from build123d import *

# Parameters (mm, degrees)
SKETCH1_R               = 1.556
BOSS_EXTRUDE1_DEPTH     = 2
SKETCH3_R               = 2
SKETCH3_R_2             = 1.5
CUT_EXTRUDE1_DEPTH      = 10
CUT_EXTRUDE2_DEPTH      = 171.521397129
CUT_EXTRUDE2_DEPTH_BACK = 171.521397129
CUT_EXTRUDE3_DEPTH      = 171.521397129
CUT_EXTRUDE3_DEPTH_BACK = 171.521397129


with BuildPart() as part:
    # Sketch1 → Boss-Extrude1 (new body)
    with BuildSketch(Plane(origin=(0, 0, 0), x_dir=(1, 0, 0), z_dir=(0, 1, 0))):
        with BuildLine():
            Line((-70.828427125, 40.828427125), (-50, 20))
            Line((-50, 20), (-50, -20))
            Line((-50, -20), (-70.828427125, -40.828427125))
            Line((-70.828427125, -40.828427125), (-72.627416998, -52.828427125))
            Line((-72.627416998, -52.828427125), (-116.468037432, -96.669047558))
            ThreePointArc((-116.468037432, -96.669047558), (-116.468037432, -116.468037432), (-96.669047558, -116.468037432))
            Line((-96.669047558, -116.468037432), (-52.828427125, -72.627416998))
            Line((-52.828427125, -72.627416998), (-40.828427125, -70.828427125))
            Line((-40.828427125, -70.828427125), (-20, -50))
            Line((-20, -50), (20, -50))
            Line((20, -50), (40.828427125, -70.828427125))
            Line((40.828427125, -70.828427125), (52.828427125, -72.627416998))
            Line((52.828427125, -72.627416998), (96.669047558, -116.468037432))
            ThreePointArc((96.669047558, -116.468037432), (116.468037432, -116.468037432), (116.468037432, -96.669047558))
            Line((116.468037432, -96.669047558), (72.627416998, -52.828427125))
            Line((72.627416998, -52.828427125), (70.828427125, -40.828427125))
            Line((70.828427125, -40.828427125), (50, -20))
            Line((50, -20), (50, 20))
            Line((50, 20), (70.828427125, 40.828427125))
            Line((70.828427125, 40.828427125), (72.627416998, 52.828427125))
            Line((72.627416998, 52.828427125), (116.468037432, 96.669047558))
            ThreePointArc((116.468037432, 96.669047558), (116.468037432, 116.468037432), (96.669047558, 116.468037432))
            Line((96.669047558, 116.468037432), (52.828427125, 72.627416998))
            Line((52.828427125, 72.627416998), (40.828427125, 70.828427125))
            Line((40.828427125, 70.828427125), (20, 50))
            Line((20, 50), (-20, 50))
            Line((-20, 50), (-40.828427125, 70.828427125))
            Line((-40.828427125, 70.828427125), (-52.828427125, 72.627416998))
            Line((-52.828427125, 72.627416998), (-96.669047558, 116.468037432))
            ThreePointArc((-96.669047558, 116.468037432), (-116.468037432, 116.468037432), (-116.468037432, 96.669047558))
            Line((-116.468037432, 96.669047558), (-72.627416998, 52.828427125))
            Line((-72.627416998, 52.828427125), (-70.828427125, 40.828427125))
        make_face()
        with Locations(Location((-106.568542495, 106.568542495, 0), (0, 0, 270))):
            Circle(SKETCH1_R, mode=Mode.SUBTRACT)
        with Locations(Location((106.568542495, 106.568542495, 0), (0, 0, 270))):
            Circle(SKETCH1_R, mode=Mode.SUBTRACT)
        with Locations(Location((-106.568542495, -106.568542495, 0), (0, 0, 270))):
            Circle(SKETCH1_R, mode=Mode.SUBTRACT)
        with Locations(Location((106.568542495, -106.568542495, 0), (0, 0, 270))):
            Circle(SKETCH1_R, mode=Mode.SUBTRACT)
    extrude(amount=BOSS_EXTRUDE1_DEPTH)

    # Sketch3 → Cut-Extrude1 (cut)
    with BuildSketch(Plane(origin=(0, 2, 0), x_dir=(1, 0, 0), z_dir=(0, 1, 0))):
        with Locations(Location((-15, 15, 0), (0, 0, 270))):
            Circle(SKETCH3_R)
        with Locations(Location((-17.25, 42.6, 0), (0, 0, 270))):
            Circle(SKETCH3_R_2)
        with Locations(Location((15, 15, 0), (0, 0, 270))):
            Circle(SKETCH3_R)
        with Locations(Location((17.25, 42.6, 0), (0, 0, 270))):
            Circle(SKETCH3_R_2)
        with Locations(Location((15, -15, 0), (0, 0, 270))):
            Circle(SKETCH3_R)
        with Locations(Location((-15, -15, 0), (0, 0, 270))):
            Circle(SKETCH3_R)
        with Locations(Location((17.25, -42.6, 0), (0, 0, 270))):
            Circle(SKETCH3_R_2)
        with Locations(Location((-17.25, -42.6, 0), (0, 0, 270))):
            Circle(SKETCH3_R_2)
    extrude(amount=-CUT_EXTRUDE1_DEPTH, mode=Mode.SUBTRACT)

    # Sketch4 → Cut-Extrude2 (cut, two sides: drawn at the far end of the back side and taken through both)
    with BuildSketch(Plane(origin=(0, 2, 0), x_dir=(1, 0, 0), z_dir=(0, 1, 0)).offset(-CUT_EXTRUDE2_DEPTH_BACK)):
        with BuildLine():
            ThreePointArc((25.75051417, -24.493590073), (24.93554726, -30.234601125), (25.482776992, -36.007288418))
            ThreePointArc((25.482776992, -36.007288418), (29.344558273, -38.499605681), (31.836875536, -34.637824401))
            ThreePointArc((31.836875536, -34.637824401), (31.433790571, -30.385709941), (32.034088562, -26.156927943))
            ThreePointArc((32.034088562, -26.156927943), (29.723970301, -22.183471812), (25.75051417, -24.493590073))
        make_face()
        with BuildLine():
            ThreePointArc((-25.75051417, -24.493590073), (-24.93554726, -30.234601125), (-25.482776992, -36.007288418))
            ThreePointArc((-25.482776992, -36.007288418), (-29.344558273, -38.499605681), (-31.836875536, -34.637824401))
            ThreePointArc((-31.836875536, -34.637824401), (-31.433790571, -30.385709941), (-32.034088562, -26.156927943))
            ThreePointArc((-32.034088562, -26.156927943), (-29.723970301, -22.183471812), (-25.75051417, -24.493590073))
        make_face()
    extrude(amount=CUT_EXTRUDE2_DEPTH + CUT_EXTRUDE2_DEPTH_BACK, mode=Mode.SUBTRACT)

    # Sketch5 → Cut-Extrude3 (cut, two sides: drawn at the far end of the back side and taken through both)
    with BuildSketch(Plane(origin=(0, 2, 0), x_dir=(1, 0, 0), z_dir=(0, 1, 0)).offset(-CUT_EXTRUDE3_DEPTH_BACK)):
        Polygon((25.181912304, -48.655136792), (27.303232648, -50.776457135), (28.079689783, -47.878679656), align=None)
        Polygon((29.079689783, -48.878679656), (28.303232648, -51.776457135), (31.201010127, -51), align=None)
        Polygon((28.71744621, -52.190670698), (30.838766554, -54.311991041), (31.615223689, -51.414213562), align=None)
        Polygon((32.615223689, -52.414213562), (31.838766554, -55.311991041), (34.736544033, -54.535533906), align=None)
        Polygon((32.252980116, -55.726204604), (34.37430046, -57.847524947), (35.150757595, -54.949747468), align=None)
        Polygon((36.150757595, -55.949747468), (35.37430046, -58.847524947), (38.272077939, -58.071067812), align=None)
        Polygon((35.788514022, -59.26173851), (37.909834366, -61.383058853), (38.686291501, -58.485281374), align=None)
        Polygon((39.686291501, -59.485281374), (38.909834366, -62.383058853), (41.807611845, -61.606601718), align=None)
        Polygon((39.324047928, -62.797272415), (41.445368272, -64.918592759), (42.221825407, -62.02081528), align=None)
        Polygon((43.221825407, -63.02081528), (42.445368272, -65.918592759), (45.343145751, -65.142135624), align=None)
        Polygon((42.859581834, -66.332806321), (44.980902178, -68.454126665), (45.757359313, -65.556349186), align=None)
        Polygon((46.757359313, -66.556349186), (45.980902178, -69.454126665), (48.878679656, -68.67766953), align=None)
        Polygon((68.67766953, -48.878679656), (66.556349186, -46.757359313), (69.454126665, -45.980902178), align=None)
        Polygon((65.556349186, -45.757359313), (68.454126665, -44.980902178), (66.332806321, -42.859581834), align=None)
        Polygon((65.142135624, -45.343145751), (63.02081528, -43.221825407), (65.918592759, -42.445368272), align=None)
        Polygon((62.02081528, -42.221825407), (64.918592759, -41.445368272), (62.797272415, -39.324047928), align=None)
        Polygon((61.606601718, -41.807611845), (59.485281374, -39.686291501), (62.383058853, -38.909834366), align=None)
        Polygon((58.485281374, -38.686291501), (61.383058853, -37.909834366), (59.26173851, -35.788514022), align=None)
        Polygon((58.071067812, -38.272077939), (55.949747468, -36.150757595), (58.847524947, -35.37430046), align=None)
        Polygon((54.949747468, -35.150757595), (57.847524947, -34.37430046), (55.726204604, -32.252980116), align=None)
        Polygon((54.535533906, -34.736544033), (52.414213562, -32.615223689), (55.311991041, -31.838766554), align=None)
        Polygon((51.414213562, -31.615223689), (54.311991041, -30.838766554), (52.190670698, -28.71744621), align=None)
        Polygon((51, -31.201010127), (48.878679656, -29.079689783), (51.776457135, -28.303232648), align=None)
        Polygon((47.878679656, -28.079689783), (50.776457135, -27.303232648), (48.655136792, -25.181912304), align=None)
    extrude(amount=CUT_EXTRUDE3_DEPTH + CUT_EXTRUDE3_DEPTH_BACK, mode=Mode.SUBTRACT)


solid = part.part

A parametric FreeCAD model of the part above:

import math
import FreeCAD as App
import Part
import Sketcher

V = App.Vector
Q = App.Units.Quantity

doc = App.newDocument("Part")
body = doc.addObject("PartDesign::Body", "Body")

sketch1 = body.newObject("Sketcher::SketchObject", "Sketch")
sketch1.AttachmentSupport = (doc.getObject("XZ_Plane"), [""])
sketch1.MapMode = "FlatFace"
sketch1.addGeometry([
    Part.LineSegment(V(-70.8, -40.8, 0), V(-50, -20, 0)),
    Part.LineSegment(V(-50, -20, 0), V(-50, 20, 0)),
    Part.LineSegment(V(-50, 20, 0), V(-70.8, 40.8, 0)),
    Part.LineSegment(V(-70.8, 40.8, 0), V(-72.6, 52.8, 0)),
    Part.LineSegment(V(-72.6, 52.8, 0), V(-116.5, 96.7, 0)),
    Part.ArcOfCircle(Part.Circle(V(-106.6, 106.6, 0), V(0, 0, 1), 14), math.radians(45), math.radians(225)),
    Part.LineSegment(V(-96.7, 116.5, 0), V(-52.8, 72.6, 0)),
    Part.LineSegment(V(-52.8, 72.6, 0), V(-40.8, 70.8, 0)),
    Part.LineSegment(V(-40.8, 70.8, 0), V(-20, 50, 0)),
    Part.LineSegment(V(-20, 50, 0), V(20, 50, 0)),
    Part.LineSegment(V(20, 50, 0), V(40.8, 70.8, 0)),
    Part.LineSegment(V(40.8, 70.8, 0), V(52.8, 72.6, 0)),
    Part.LineSegment(V(52.8, 72.6, 0), V(96.7, 116.5, 0)),
    Part.ArcOfCircle(Part.Circle(V(106.6, 106.6, 0), V(0, 0, 1), 14), math.radians(-45), math.radians(135)),
    Part.LineSegment(V(116.5, 96.7, 0), V(72.6, 52.8, 0)),
    Part.LineSegment(V(72.6, 52.8, 0), V(70.8, 40.8, 0)),
    Part.LineSegment(V(70.8, 40.8, 0), V(50, 20, 0)),
    Part.LineSegment(V(50, 20, 0), V(50, -20, 0)),
    Part.LineSegment(V(50, -20, 0), V(70.8, -40.8, 0)),
    Part.LineSegment(V(70.8, -40.8, 0), V(72.6, -52.8, 0)),
    Part.LineSegment(V(72.6, -52.8, 0), V(116.5, -96.7, 0)),
    Part.ArcOfCircle(Part.Circle(V(106.6, -106.6, 0), V(0, 0, 1), 14), math.radians(-135), math.radians(45)),
    Part.LineSegment(V(96.7, -116.5, 0), V(52.8, -72.6, 0)),
    Part.LineSegment(V(52.8, -72.6, 0), V(40.8, -70.8, 0)),
    Part.LineSegment(V(40.8, -70.8, 0), V(20, -50, 0)),
    Part.LineSegment(V(20, -50, 0), V(-20, -50, 0)),
    Part.LineSegment(V(-20, -50, 0), V(-40.8, -70.8, 0)),
    Part.LineSegment(V(-40.8, -70.8, 0), V(-52.8, -72.6, 0)),
    Part.LineSegment(V(-52.8, -72.6, 0), V(-96.7, -116.5, 0)),
    Part.ArcOfCircle(Part.Circle(V(-106.6, -106.6, 0), V(0, 0, 1), 14), math.radians(135), math.radians(315)),
    Part.LineSegment(V(-116.5, -96.7, 0), V(-72.6, -52.8, 0)),
    Part.LineSegment(V(-72.6, -52.8, 0), V(-70.8, -40.8, 0)),
    Part.Circle(V(-106.6, 106.6, 0), V(0, 0, 1), 1.6),
    Part.Circle(V(106.6, 106.6, 0), V(0, 0, 1), 1.6),
    Part.Circle(V(-106.6, -106.6, 0), V(0, 0, 1), 1.6),
    Part.Circle(V(106.6, -106.6, 0), V(0, 0, 1), 1.6),
], False)
sketch1.addConstraint([
    Sketcher.Constraint("Coincident", 0, 2, 1, 1),
    Sketcher.Constraint("Coincident", 1, 2, 2, 1),
    Sketcher.Constraint("Coincident", 2, 2, 3, 1),
    Sketcher.Constraint("Coincident", 3, 2, 4, 1),
    Sketcher.Constraint("Tangent", 4, 2, 5, 2),
    Sketcher.Constraint("Tangent", 5, 1, 6, 1),
    Sketcher.Constraint("Coincident", 6, 2, 7, 1),
    Sketcher.Constraint("Coincident", 7, 2, 8, 1),
    Sketcher.Constraint("Coincident", 8, 2, 9, 1),
    Sketcher.Constraint("Coincident", 9, 2, 10, 1),
    Sketcher.Constraint("Coincident", 10, 2, 11, 1),
    Sketcher.Constraint("Coincident", 11, 2, 12, 1),
    Sketcher.Constraint("Tangent", 12, 2, 13, 2),
    Sketcher.Constraint("Tangent", 13, 1, 14, 1),
    Sketcher.Constraint("Coincident", 14, 2, 15, 1),
    Sketcher.Constraint("Coincident", 15, 2, 16, 1),
    Sketcher.Constraint("Coincident", 16, 2, 17, 1),
    Sketcher.Constraint("Coincident", 17, 2, 18, 1),
    Sketcher.Constraint("Coincident", 18, 2, 19, 1),
    Sketcher.Constraint("Coincident", 19, 2, 20, 1),
    Sketcher.Constraint("Tangent", 20, 2, 21, 2),
    Sketcher.Constraint("Tangent", 21, 1, 22, 1),
    Sketcher.Constraint("Coincident", 22, 2, 23, 1),
    Sketcher.Constraint("Coincident", 23, 2, 24, 1),
    Sketcher.Constraint("Coincident", 24, 2, 25, 1),
    Sketcher.Constraint("Coincident", 25, 2, 26, 1),
    Sketcher.Constraint("Coincident", 26, 2, 27, 1),
    Sketcher.Constraint("Coincident", 27, 2, 28, 1),
    Sketcher.Constraint("Tangent", 28, 2, 29, 2),
    Sketcher.Constraint("Tangent", 29, 1, 30, 1),
    Sketcher.Constraint("Coincident", 30, 2, 31, 1),
    Sketcher.Constraint("Coincident", 31, 2, 0, 1),
    Sketcher.Constraint("Vertical", 1),
    Sketcher.Constraint("Horizontal", 9),
    Sketcher.Constraint("Vertical", 17),
    Sketcher.Constraint("Horizontal", 25),
    Sketcher.Constraint("Coincident", 32, 3, 5, 3),
    Sketcher.Constraint("Coincident", 33, 3, 13, 3),
    Sketcher.Constraint("Coincident", 34, 3, 29, 3),
    Sketcher.Constraint("Coincident", 35, 3, 21, 3),
    Sketcher.Constraint("Equal", 5, 13),
    Sketcher.Constraint("Equal", 13, 21),
    Sketcher.Constraint("Equal", 21, 29),
    Sketcher.Constraint("Equal", 32, 33),
    Sketcher.Constraint("Equal", 33, 34),
    Sketcher.Constraint("Equal", 34, 35),
    Sketcher.Constraint("Symmetric", 5, 3, 21, 3, -1, 1),
    Sketcher.Constraint("Symmetric", 13, 3, 29, 3, -1, 1),
    Sketcher.Constraint("Symmetric", 0, 2, 16, 2, -1, 1),
    Sketcher.Constraint("Symmetric", 2, 2, 18, 2, -1, 1),
    Sketcher.Constraint("Symmetric", 3, 2, 19, 2, -1, 1),
    Sketcher.Constraint("Symmetric", 6, 2, 22, 2, -1, 1),
    Sketcher.Constraint("Symmetric", 7, 2, 23, 2, -1, 1),
    Sketcher.Constraint("Symmetric", 8, 2, 24, 2, -1, 1),
    Sketcher.Constraint("Symmetric", 10, 2, 26, 2, -1, 1),
    Sketcher.Constraint("Symmetric", 11, 2, 27, 2, -1, 1),
    Sketcher.Constraint("Symmetric", 14, 2, 30, 2, -1, 1),
    Sketcher.Constraint("Symmetric", 15, 2, 31, 2, -1, 1),
    Sketcher.Constraint("Symmetric", 5, 3, 13, 3, -2),
    Sketcher.Constraint("Symmetric", 7, 2, 10, 2, -2),
    Sketcher.Constraint("Symmetric", 6, 2, 11, 2, -2),
    Sketcher.Constraint("Symmetric", 3, 2, 14, 2, -2),
    Sketcher.Constraint("Symmetric", 2, 2, 15, 2, -2),
    Sketcher.Constraint("Perpendicular", 0, 2),
    Sketcher.Constraint("Parallel", 2, 4),
    Sketcher.Constraint("Parallel", 4, 6),
    Sketcher.Constraint("Parallel", 6, 8),
    Sketcher.Constraint("Perpendicular", 8, 10),
    Sketcher.Constraint("Perpendicular", 3, 11),
    Sketcher.Constraint("Parallel", 10, 12),
    Sketcher.Constraint("Perpendicular", 16, 18),
    Sketcher.Constraint("Perpendicular", 24, 26),
    Sketcher.Constraint("Equal", 25, 1),
    Sketcher.Constraint("Equal", 4, 6),
    Sketcher.Constraint("Equal", 3, 7),
    Sketcher.Constraint("Equal", 2, 8),
    Sketcher.Constraint("Radius", 5, Q("14 mm")),
    Sketcher.Constraint("DistanceX", 9, 1, 9, 2, Q("40 mm")),
    Sketcher.Constraint("Distance", 4, Q("62 mm")),
    Sketcher.Constraint("Diameter", 32, Q("3.112 mm")),
    Sketcher.Constraint("DistanceX", 0, 2, -1, 1, Q("50 mm")),
    Sketcher.Constraint("DistanceY", 2, 2, 3, 2, Q("12 mm")),
    Sketcher.Constraint("DistanceY", 29, 3, 2, 2, Q("147.39697 mm")),
])
pad1 = body.newObject("PartDesign::Pad", "Pad")
pad1.Profile = sketch1
pad1.Length = 2
pad1.Reversed = True

sketch2 = body.newObject("Sketcher::SketchObject", "Sketch001")
sketch2.AttachmentSupport = (doc.getObject("XZ_Plane"), [""])
sketch2.MapMode = "FlatFace"
sketch2.AttachmentOffset = App.Placement(V(0, 0, -2), App.Rotation())
sketch2.addGeometry([
    Part.Circle(V(-15, -15, 0), V(0, 0, 1), 2),
    Part.Circle(V(-17.2, -42.6, 0), V(0, 0, 1), 1.5),
    Part.Circle(V(15, -15, 0), V(0, 0, 1), 2),
    Part.Circle(V(17.2, -42.6, 0), V(0, 0, 1), 1.5),
    Part.Circle(V(15, 15, 0), V(0, 0, 1), 2),
    Part.Circle(V(-15, 15, 0), V(0, 0, 1), 2),
    Part.Circle(V(17.2, 42.6, 0), V(0, 0, 1), 1.5),
    Part.Circle(V(-17.2, 42.6, 0), V(0, 0, 1), 1.5),
], False)
sketch2.addConstraint([
    Sketcher.Constraint("Equal", 0, 2),
    Sketcher.Constraint("Equal", 1, 3),
    Sketcher.Constraint("Equal", 2, 4),
    Sketcher.Constraint("Equal", 4, 5),
    Sketcher.Constraint("Equal", 3, 6),
    Sketcher.Constraint("Equal", 6, 7),
    Sketcher.Constraint("Symmetric", 0, 3, 4, 3, -1, 1),
    Sketcher.Constraint("Symmetric", 2, 3, 5, 3, -1, 1),
    Sketcher.Constraint("Symmetric", 1, 3, 6, 3, -1, 1),
    Sketcher.Constraint("Symmetric", 3, 3, 7, 3, -1, 1),
    Sketcher.Constraint("Symmetric", 0, 3, 2, 3, -2),
    Sketcher.Constraint("Symmetric", 1, 3, 3, 3, -2),
    Sketcher.Constraint("Diameter", 0, Q("4 mm")),
    Sketcher.Constraint("Diameter", 1, Q("3 mm")),
    Sketcher.Constraint("DistanceX", 0, 3, -1, 1, Q("15 mm")),
    Sketcher.Constraint("DistanceY", 0, 3, -1, 1, Q("15 mm")),
    Sketcher.Constraint("DistanceY", 1, 3, -1, 1, Q("42.6 mm")),
    Sketcher.Constraint("DistanceX", 1, 3, 3, 3, Q("34.5 mm")),
])
pocket1 = body.newObject("PartDesign::Pocket", "Pocket")
pocket1.Profile = sketch2
pocket1.Length = 10
pocket1.Reversed = True

sketch3 = body.newObject("Sketcher::SketchObject", "Sketch002")
sketch3.AttachmentSupport = (doc.getObject("XZ_Plane"), [""])
sketch3.MapMode = "FlatFace"
sketch3.AttachmentOffset = App.Placement(V(0, 0, -2), App.Rotation())
sketch3.addGeometry([
    Part.ArcOfCircle(Part.Circle(V(49.6, 30.8, 0), V(0, 0, 1), 24.7), math.radians(168), math.radians(195)),
    Part.ArcOfCircle(Part.Circle(V(28.7, 35.3, 0), V(0, 0, 1), 3.2), math.radians(-12), math.radians(168)),
    Part.ArcOfCircle(Part.Circle(V(49.6, 30.8, 0), V(0, 0, 1), 18.2), math.radians(168), math.radians(195)),
    Part.ArcOfCircle(Part.Circle(V(28.9, 25.3, 0), V(0, 0, 1), 3.2), math.radians(-165), math.radians(15)),
    Part.ArcOfCircle(Part.Circle(V(-49.6, 30.8, 0), V(0, 0, 1), 24.7), math.radians(-15), math.radians(12)),
    Part.ArcOfCircle(Part.Circle(V(-28.9, 25.3, 0), V(0, 0, 1), 3.2), math.radians(165), math.radians(345)),
    Part.ArcOfCircle(Part.Circle(V(-49.6, 30.8, 0), V(0, 0, 1), 18.2), math.radians(-15), math.radians(12)),
    Part.ArcOfCircle(Part.Circle(V(-28.7, 35.3, 0), V(0, 0, 1), 3.2), math.radians(12), math.radians(192)),
], False)
sketch3.addConstraint([
    Sketcher.Constraint("Tangent", 0, 1, 1, 2),
    Sketcher.Constraint("Tangent", 1, 1, 2, 1),
    Sketcher.Constraint("Tangent", 2, 2, 3, 2),
    Sketcher.Constraint("Tangent", 3, 1, 0, 2),
    Sketcher.Constraint("Tangent", 4, 1, 5, 2),
    Sketcher.Constraint("Tangent", 5, 1, 6, 1),
    Sketcher.Constraint("Tangent", 6, 2, 7, 2),
    Sketcher.Constraint("Tangent", 7, 1, 4, 2),
    Sketcher.Constraint("Coincident", 2, 3, 0, 3),
    Sketcher.Constraint("Coincident", 6, 3, 4, 3),
    Sketcher.Constraint("Equal", 0, 4),
    Sketcher.Constraint("Equal", 3, 5),
    Sketcher.Constraint("Symmetric", 0, 3, 4, 3, -2),
    Sketcher.Constraint("Horizontal", 3, 3, 5, 3),
    Sketcher.Constraint("Horizontal", 1, 3, 7, 3),
    Sketcher.Constraint("Radius", 1, Q("3.25 mm")),
    Sketcher.Constraint("Radius", 0, Q("24.676534 mm")),
    Sketcher.Constraint("DistanceX", -1, 1, 3, 3, Q("28.892301 mm")),
    Sketcher.Constraint("DistanceX", 0, 1, 1, 1, Q("6.354099 mm")),
    Sketcher.Constraint("DistanceY", 3, 1, 0, 1, Q("11.513698 mm")),
    Sketcher.Constraint("DistanceY", -1, 1, 0, 3, Q("30.808269 mm")),
])
pocket2 = body.newObject("PartDesign::Pocket", "Pocket001")
pocket2.Profile = sketch3
pocket2.Type = "ThroughAll"
pocket2.Midplane = True

sketch4 = body.newObject("Sketcher::SketchObject", "Sketch003")
sketch4.AttachmentSupport = (doc.getObject("XZ_Plane"), [""])
sketch4.MapMode = "FlatFace"
sketch4.AttachmentOffset = App.Placement(V(0, 0, -2), App.Rotation())
sketch4.addGeometry([
    Part.LineSegment(V(25.2, 48.7, 0), V(27.3, 50.8, 0)),
    Part.LineSegment(V(27.3, 50.8, 0), V(28.1, 47.9, 0)),
    Part.LineSegment(V(28.1, 47.9, 0), V(25.2, 48.7, 0)),
    Part.LineSegment(V(29.1, 48.9, 0), V(28.3, 51.8, 0)),
    Part.LineSegment(V(28.3, 51.8, 0), V(31.2, 51, 0)),
    Part.LineSegment(V(31.2, 51, 0), V(29.1, 48.9, 0)),
    Part.LineSegment(V(28.7, 52.2, 0), V(30.8, 54.3, 0)),
    Part.LineSegment(V(30.8, 54.3, 0), V(31.6, 51.4, 0)),
    Part.LineSegment(V(31.6, 51.4, 0), V(28.7, 52.2, 0)),
    Part.LineSegment(V(32.6, 52.4, 0), V(31.8, 55.3, 0)),
    Part.LineSegment(V(31.8, 55.3, 0), V(34.7, 54.5, 0)),
    Part.LineSegment(V(34.7, 54.5, 0), V(32.6, 52.4, 0)),
    Part.LineSegment(V(32.3, 55.7, 0), V(34.4, 57.8, 0)),
    Part.LineSegment(V(34.4, 57.8, 0), V(35.2, 54.9, 0)),
    Part.LineSegment(V(35.2, 54.9, 0), V(32.3, 55.7, 0)),
    Part.LineSegment(V(36.2, 55.9, 0), V(35.4, 58.8, 0)),
    Part.LineSegment(V(35.4, 58.8, 0), V(38.3, 58.1, 0)),
    Part.LineSegment(V(38.3, 58.1, 0), V(36.2, 55.9, 0)),
    Part.LineSegment(V(35.8, 59.3, 0), V(37.9, 61.4, 0)),
    Part.LineSegment(V(37.9, 61.4, 0), V(38.7, 58.5, 0)),
    Part.LineSegment(V(38.7, 58.5, 0), V(35.8, 59.3, 0)),
    Part.LineSegment(V(39.7, 59.5, 0), V(38.9, 62.4, 0)),
    Part.LineSegment(V(38.9, 62.4, 0), V(41.8, 61.6, 0)),
    Part.LineSegment(V(41.8, 61.6, 0), V(39.7, 59.5, 0)),
    Part.LineSegment(V(39.3, 62.8, 0), V(41.4, 64.9, 0)),
    Part.LineSegment(V(41.4, 64.9, 0), V(42.2, 62, 0)),
    Part.LineSegment(V(42.2, 62, 0), V(39.3, 62.8, 0)),
    Part.LineSegment(V(43.2, 63, 0), V(42.4, 65.9, 0)),
    Part.LineSegment(V(42.4, 65.9, 0), V(45.3, 65.1, 0)),
    Part.LineSegment(V(45.3, 65.1, 0), V(43.2, 63, 0)),
    Part.LineSegment(V(42.9, 66.3, 0), V(45, 68.5, 0)),
    Part.LineSegment(V(45, 68.5, 0), V(45.8, 65.6, 0)),
    Part.LineSegment(V(45.8, 65.6, 0), V(42.9, 66.3, 0)),
    Part.LineSegment(V(46.8, 66.6, 0), V(46, 69.5, 0)),
    Part.LineSegment(V(46, 69.5, 0), V(48.9, 68.7, 0)),
    Part.LineSegment(V(48.9, 68.7, 0), V(46.8, 66.6, 0)),
    Part.LineSegment(V(66.6, 46.8, 0), V(68.7, 48.9, 0)),
    Part.LineSegment(V(68.7, 48.9, 0), V(69.5, 46, 0)),
    Part.LineSegment(V(69.5, 46, 0), V(66.6, 46.8, 0)),
    Part.LineSegment(V(65.6, 45.8, 0), V(68.5, 45, 0)),
    Part.LineSegment(V(68.5, 45, 0), V(66.3, 42.9, 0)),
    Part.LineSegment(V(66.3, 42.9, 0), V(65.6, 45.8, 0)),
    Part.LineSegment(V(63, 43.2, 0), V(65.1, 45.3, 0)),
    Part.LineSegment(V(65.1, 45.3, 0), V(65.9, 42.4, 0)),
    Part.LineSegment(V(65.9, 42.4, 0), V(63, 43.2, 0)),
    Part.LineSegment(V(62, 42.2, 0), V(64.9, 41.4, 0)),
    Part.LineSegment(V(64.9, 41.4, 0), V(62.8, 39.3, 0)),
    Part.LineSegment(V(62.8, 39.3, 0), V(62, 42.2, 0)),
    Part.LineSegment(V(59.5, 39.7, 0), V(61.6, 41.8, 0)),
    Part.LineSegment(V(61.6, 41.8, 0), V(62.4, 38.9, 0)),
    Part.LineSegment(V(62.4, 38.9, 0), V(59.5, 39.7, 0)),
    Part.LineSegment(V(58.5, 38.7, 0), V(61.4, 37.9, 0)),
    Part.LineSegment(V(61.4, 37.9, 0), V(59.3, 35.8, 0)),
    Part.LineSegment(V(59.3, 35.8, 0), V(58.5, 38.7, 0)),
    Part.LineSegment(V(55.9, 36.2, 0), V(58.1, 38.3, 0)),
    Part.LineSegment(V(58.1, 38.3, 0), V(58.8, 35.4, 0)),
    Part.LineSegment(V(58.8, 35.4, 0), V(55.9, 36.2, 0)),
    Part.LineSegment(V(54.9, 35.2, 0), V(57.8, 34.4, 0)),
    Part.LineSegment(V(57.8, 34.4, 0), V(55.7, 32.3, 0)),
    Part.LineSegment(V(55.7, 32.3, 0), V(54.9, 35.2, 0)),
    Part.LineSegment(V(52.4, 32.6, 0), V(54.5, 34.7, 0)),
    Part.LineSegment(V(54.5, 34.7, 0), V(55.3, 31.8, 0)),
    Part.LineSegment(V(55.3, 31.8, 0), V(52.4, 32.6, 0)),
    Part.LineSegment(V(51.4, 31.6, 0), V(54.3, 30.8, 0)),
    Part.LineSegment(V(54.3, 30.8, 0), V(52.2, 28.7, 0)),
    Part.LineSegment(V(52.2, 28.7, 0), V(51.4, 31.6, 0)),
    Part.LineSegment(V(48.9, 29.1, 0), V(51, 31.2, 0)),
    Part.LineSegment(V(51, 31.2, 0), V(51.8, 28.3, 0)),
    Part.LineSegment(V(51.8, 28.3, 0), V(48.9, 29.1, 0)),
    Part.LineSegment(V(47.9, 28.1, 0), V(50.8, 27.3, 0)),
    Part.LineSegment(V(50.8, 27.3, 0), V(48.7, 25.2, 0)),
    Part.LineSegment(V(48.7, 25.2, 0), V(47.9, 28.1, 0)),
], False)
sketch4.addConstraint([
    Sketcher.Constraint("Coincident", 0, 2, 1, 1),
    Sketcher.Constraint("Coincident", 1, 2, 2, 1),
    Sketcher.Constraint("Coincident", 2, 2, 0, 1),
    Sketcher.Constraint("Coincident", 3, 2, 4, 1),
    Sketcher.Constraint("Coincident", 4, 2, 5, 1),
    Sketcher.Constraint("Coincident", 5, 2, 3, 1),
    Sketcher.Constraint("Coincident", 6, 2, 7, 1),
    Sketcher.Constraint("Coincident", 7, 2, 8, 1),
    Sketcher.Constraint("Coincident", 8, 2, 6, 1),
    Sketcher.Constraint("Coincident", 9, 2, 10, 1),
    Sketcher.Constraint("Coincident", 10, 2, 11, 1),
    Sketcher.Constraint("Coincident", 11, 2, 9, 1),
    Sketcher.Constraint("Coincident", 12, 2, 13, 1),
    Sketcher.Constraint("Coincident", 13, 2, 14, 1),
    Sketcher.Constraint("Coincident", 14, 2, 12, 1),
    Sketcher.Constraint("Coincident", 15, 2, 16, 1),
    Sketcher.Constraint("Coincident", 16, 2, 17, 1),
    Sketcher.Constraint("Coincident", 17, 2, 15, 1),
    Sketcher.Constraint("Coincident", 18, 2, 19, 1),
    Sketcher.Constraint("Coincident", 19, 2, 20, 1),
    Sketcher.Constraint("Coincident", 20, 2, 18, 1),
    Sketcher.Constraint("Coincident", 21, 2, 22, 1),
    Sketcher.Constraint("Coincident", 22, 2, 23, 1),
    Sketcher.Constraint("Coincident", 23, 2, 21, 1),
    Sketcher.Constraint("Coincident", 24, 2, 25, 1),
    Sketcher.Constraint("Coincident", 25, 2, 26, 1),
    Sketcher.Constraint("Coincident", 26, 2, 24, 1),
    Sketcher.Constraint("Coincident", 27, 2, 28, 1),
    Sketcher.Constraint("Coincident", 28, 2, 29, 1),
    Sketcher.Constraint("Coincident", 29, 2, 27, 1),
    Sketcher.Constraint("Coincident", 30, 2, 31, 1),
    Sketcher.Constraint("Coincident", 31, 2, 32, 1),
    Sketcher.Constraint("Coincident", 32, 2, 30, 1),
    Sketcher.Constraint("Coincident", 33, 2, 34, 1),
    Sketcher.Constraint("Coincident", 34, 2, 35, 1),
    Sketcher.Constraint("Coincident", 35, 2, 33, 1),
    Sketcher.Constraint("Coincident", 36, 2, 37, 1),
    Sketcher.Constraint("Coincident", 37, 2, 38, 1),
    Sketcher.Constraint("Coincident", 38, 2, 36, 1),
    Sketcher.Constraint("Coincident", 39, 2, 40, 1),
    Sketcher.Constraint("Coincident", 40, 2, 41, 1),
    Sketcher.Constraint("Coincident", 41, 2, 39, 1),
    Sketcher.Constraint("Coincident", 42, 2, 43, 1),
    Sketcher.Constraint("Coincident", 43, 2, 44, 1),
    Sketcher.Constraint("Coincident", 44, 2, 42, 1),
    Sketcher.Constraint("Coincident", 45, 2, 46, 1),
    Sketcher.Constraint("Coincident", 46, 2, 47, 1),
    Sketcher.Constraint("Coincident", 47, 2, 45, 1),
    Sketcher.Constraint("Coincident", 48, 2, 49, 1),
    Sketcher.Constraint("Coincident", 49, 2, 50, 1),
    Sketcher.Constraint("Coincident", 50, 2, 48, 1),
    Sketcher.Constraint("Coincident", 51, 2, 52, 1),
    Sketcher.Constraint("Coincident", 52, 2, 53, 1),
    Sketcher.Constraint("Coincident", 53, 2, 51, 1),
    Sketcher.Constraint("Coincident", 54, 2, 55, 1),
    Sketcher.Constraint("Coincident", 55, 2, 56, 1),
    Sketcher.Constraint("Coincident", 56, 2, 54, 1),
    Sketcher.Constraint("Coincident", 57, 2, 58, 1),
    Sketcher.Constraint("Coincident", 58, 2, 59, 1),
    Sketcher.Constraint("Coincident", 59, 2, 57, 1),
    Sketcher.Constraint("Coincident", 60, 2, 61, 1),
    Sketcher.Constraint("Coincident", 61, 2, 62, 1),
    Sketcher.Constraint("Coincident", 62, 2, 60, 1),
    Sketcher.Constraint("Coincident", 63, 2, 64, 1),
    Sketcher.Constraint("Coincident", 64, 2, 65, 1),
    Sketcher.Constraint("Coincident", 65, 2, 63, 1),
    Sketcher.Constraint("Coincident", 66, 2, 67, 1),
    Sketcher.Constraint("Coincident", 67, 2, 68, 1),
    Sketcher.Constraint("Coincident", 68, 2, 66, 1),
    Sketcher.Constraint("Coincident", 69, 2, 70, 1),
    Sketcher.Constraint("Coincident", 70, 2, 71, 1),
    Sketcher.Constraint("Coincident", 71, 2, 69, 1),
    Sketcher.Constraint("Parallel", 1, 3),
    Sketcher.Constraint("Parallel", 2, 4),
    Sketcher.Constraint("Parallel", 0, 5),
    Sketcher.Constraint("Parallel", 5, 6),
    Sketcher.Constraint("Parallel", 3, 7),
    Sketcher.Constraint("Parallel", 4, 8),
    Sketcher.Constraint("Parallel", 7, 9),
    Sketcher.Constraint("Parallel", 8, 10),
    Sketcher.Constraint("Parallel", 6, 11),
    Sketcher.Constraint("Parallel", 11, 12),
    Sketcher.Constraint("Parallel", 9, 13),
    Sketcher.Constraint("Parallel", 10, 14),
    Sketcher.Constraint("Parallel", 13, 15),
    Sketcher.Constraint("Parallel", 14, 16),
    Sketcher.Constraint("Parallel", 12, 17),
    Sketcher.Constraint("Parallel", 17, 18),
    Sketcher.Constraint("Parallel", 15, 19),
    Sketcher.Constraint("Parallel", 16, 20),
    Sketcher.Constraint("Parallel", 19, 21),
    Sketcher.Constraint("Parallel", 20, 22),
    Sketcher.Constraint("Parallel", 18, 23),
    Sketcher.Constraint("Parallel", 23, 24),
    Sketcher.Constraint("Parallel", 21, 25),
    Sketcher.Constraint("Parallel", 22, 26),
    Sketcher.Constraint("Parallel", 25, 27),
    Sketcher.Constraint("Parallel", 26, 28),
    Sketcher.Constraint("Parallel", 24, 29),
    Sketcher.Constraint("Parallel", 29, 30),
    Sketcher.Constraint("Parallel", 27, 31),
    Sketcher.Constraint("Parallel", 28, 32),
    Sketcher.Constraint("Parallel", 31, 33),
    Sketcher.Constraint("Parallel", 32, 34),
    Sketcher.Constraint("Parallel", 30, 35),
    Sketcher.Constraint("Parallel", 35, 36),
    Sketcher.Constraint("Parallel", 33, 37),
    Sketcher.Constraint("Parallel", 34, 38),
    Sketcher.Constraint("Parallel", 38, 39),
    Sketcher.Constraint("Parallel", 36, 40),
    Sketcher.Constraint("Parallel", 37, 41),
    Sketcher.Constraint("Parallel", 40, 42),
    Sketcher.Constraint("Parallel", 41, 43),
    Sketcher.Constraint("Parallel", 39, 44),
    Sketcher.Constraint("Parallel", 44, 45),
    Sketcher.Constraint("Parallel", 42, 46),
    Sketcher.Constraint("Parallel", 43, 47),
    Sketcher.Constraint("Parallel", 46, 48),
    Sketcher.Constraint("Parallel", 47, 49),
    Sketcher.Constraint("Parallel", 45, 50),
    Sketcher.Constraint("Parallel", 50, 51),
    Sketcher.Constraint("Parallel", 48, 52),
    Sketcher.Constraint("Parallel", 49, 53),
    Sketcher.Constraint("Parallel", 52, 54),
    Sketcher.Constraint("Parallel", 53, 55),
    Sketcher.Constraint("Parallel", 51, 56),
    Sketcher.Constraint("Parallel", 56, 57),
    Sketcher.Constraint("Parallel", 54, 58),
    Sketcher.Constraint("Parallel", 55, 59),
    Sketcher.Constraint("Parallel", 58, 60),
    Sketcher.Constraint("Parallel", 59, 61),
    Sketcher.Constraint("Parallel", 57, 62),
    Sketcher.Constraint("Parallel", 62, 63),
    Sketcher.Constraint("Parallel", 60, 64),
    Sketcher.Constraint("Parallel", 61, 65),
    Sketcher.Constraint("Parallel", 64, 66),
    Sketcher.Constraint("Parallel", 65, 67),
    Sketcher.Constraint("Parallel", 63, 68),
    Sketcher.Constraint("Parallel", 68, 69),
    Sketcher.Constraint("Parallel", 66, 70),
    Sketcher.Constraint("Parallel", 67, 71),
    Sketcher.Constraint("Horizontal", 5, 2, 36, 2),
    Sketcher.Constraint("Vertical", 34, 2, 68, 2),
    Sketcher.Constraint("Equal", 0, 1),
    Sketcher.Constraint("Equal", 1, 2),
    Sketcher.Constraint("Equal", 2, 3),
    Sketcher.Constraint("Equal", 5, 6),
    Sketcher.Constraint("Equal", 8, 9),
    Sketcher.Constraint("Equal", 11, 12),
    Sketcher.Constraint("Equal", 14, 15),
    Sketcher.Constraint("Equal", 17, 18),
    Sketcher.Constraint("Equal", 20, 21),
    Sketcher.Constraint("Equal", 23, 24),
    Sketcher.Constraint("Equal", 26, 27),
    Sketcher.Constraint("Equal", 29, 30),
    Sketcher.Constraint("Equal", 32, 33),
    Sketcher.Constraint("Equal", 35, 36),
    Sketcher.Constraint("Equal", 38, 39),
    Sketcher.Constraint("Equal", 41, 42),
    Sketcher.Constraint("Equal", 44, 45),
    Sketcher.Constraint("Equal", 47, 48),
    Sketcher.Constraint("Equal", 50, 51),
    Sketcher.Constraint("Equal", 53, 54),
    Sketcher.Constraint("Equal", 56, 57),
    Sketcher.Constraint("Equal", 59, 60),
    Sketcher.Constraint("Equal", 62, 63),
    Sketcher.Constraint("Equal", 65, 66),
    Sketcher.Constraint("Equal", 68, 69),
    Sketcher.Constraint("Angle", 0, Q("45 deg")),
    Sketcher.Constraint("Distance", 0, Q("3 mm")),
    Sketcher.Constraint("DistanceY", -1, 1, 4, 2, Q("51 mm")),
    Sketcher.Constraint("DistanceX", -1, 1, 66, 2, Q("51 mm")),
    Sketcher.Constraint("DistanceX", -1, 1, 12, 2, Q("34.3743 mm")),
    Sketcher.Constraint("DistanceX", -1, 1, 15, 2, Q("35.3743 mm")),
    Sketcher.Constraint("DistanceY", -1, 1, 22, 2, Q("61.606602 mm")),
    Sketcher.Constraint("DistanceX", -1, 1, 48, 2, Q("61.606602 mm")),
    Sketcher.Constraint("DistanceY", -1, 1, 55, 2, Q("35.3743 mm")),
    Sketcher.Constraint("DistanceY", -1, 1, 57, 2, Q("34.3743 mm")),
    Sketcher.Constraint("DistanceX", -1, 1, 1, 2, Q("28.07969 mm")),
    Sketcher.Constraint("DistanceY", -1, 1, 1, 2, Q("47.87868 mm")),
    Sketcher.Constraint("DistanceX", -1, 1, 4, 2, Q("31.20101 mm")),
    Sketcher.Constraint("DistanceY", -1, 1, 6, 2, Q("54.311991 mm")),
    Sketcher.Constraint("DistanceY", -1, 1, 9, 2, Q("55.311991 mm")),
    Sketcher.Constraint("DistanceY", -1, 1, 18, 2, Q("61.383059 mm")),
    Sketcher.Constraint("DistanceX", -1, 1, 19, 2, Q("38.686292 mm")),
    Sketcher.Constraint("DistanceX", -1, 1, 22, 2, Q("41.807612 mm")),
    Sketcher.Constraint("DistanceX", -1, 1, 24, 2, Q("41.445368 mm")),
    Sketcher.Constraint("DistanceX", -1, 1, 27, 2, Q("42.445368 mm")),
    Sketcher.Constraint("DistanceX", -1, 1, 31, 2, Q("45.757359 mm")),
    Sketcher.Constraint("DistanceY", -1, 1, 31, 2, Q("65.556349 mm")),
    Sketcher.Constraint("DistanceY", -1, 1, 34, 2, Q("68.67767 mm")),
    Sketcher.Constraint("DistanceX", -1, 1, 36, 2, Q("68.67767 mm")),
    Sketcher.Constraint("DistanceY", -1, 1, 40, 2, Q("42.859582 mm")),
    Sketcher.Constraint("DistanceX", -1, 1, 41, 2, Q("65.556349 mm")),
    Sketcher.Constraint("DistanceY", -1, 1, 43, 2, Q("42.445368 mm")),
    Sketcher.Constraint("DistanceY", -1, 1, 45, 2, Q("41.445368 mm")),
    Sketcher.Constraint("DistanceY", -1, 1, 48, 2, Q("41.807612 mm")),
    Sketcher.Constraint("DistanceX", -1, 1, 51, 2, Q("61.383059 mm")),
    Sketcher.Constraint("DistanceY", -1, 1, 53, 2, Q("38.686292 mm")),
    Sketcher.Constraint("DistanceX", -1, 1, 61, 2, Q("55.311991 mm")),
    Sketcher.Constraint("DistanceX", -1, 1, 63, 2, Q("54.311991 mm")),
    Sketcher.Constraint("DistanceY", -1, 1, 66, 2, Q("31.20101 mm")),
    Sketcher.Constraint("DistanceX", -1, 1, 71, 2, Q("47.87868 mm")),
    Sketcher.Constraint("DistanceY", -1, 1, 71, 2, Q("28.07969 mm")),
    Sketcher.Constraint("DistanceX", -1, 1, 6, 2, Q("30.838767 mm")),
    Sketcher.Constraint("DistanceX", -1, 1, 9, 2, Q("31.838767 mm")),
    Sketcher.Constraint("DistanceY", -1, 1, 12, 2, Q("57.847525 mm")),
    Sketcher.Constraint("DistanceY", -1, 1, 15, 2, Q("58.847525 mm")),
    Sketcher.Constraint("DistanceY", -1, 1, 24, 2, Q("64.918593 mm")),
    Sketcher.Constraint("DistanceY", -1, 1, 27, 2, Q("65.918593 mm")),
    Sketcher.Constraint("DistanceX", -1, 1, 42, 2, Q("65.142136 mm")),
    Sketcher.Constraint("DistanceX", -1, 1, 45, 2, Q("64.918593 mm")),
    Sketcher.Constraint("DistanceX", -1, 1, 54, 2, Q("58.071068 mm")),
    Sketcher.Constraint("DistanceX", -1, 1, 57, 2, Q("57.847525 mm")),
    Sketcher.Constraint("DistanceY", -1, 1, 60, 2, Q("34.736544 mm")),
    Sketcher.Constraint("DistanceY", -1, 1, 63, 2, Q("30.838767 mm")),
])
pocket3 = body.newObject("PartDesign::Pocket", "Pocket002")
pocket3.Profile = sketch4
pocket3.Type = "ThroughAll"
pocket3.Midplane = True

doc.recompute()
